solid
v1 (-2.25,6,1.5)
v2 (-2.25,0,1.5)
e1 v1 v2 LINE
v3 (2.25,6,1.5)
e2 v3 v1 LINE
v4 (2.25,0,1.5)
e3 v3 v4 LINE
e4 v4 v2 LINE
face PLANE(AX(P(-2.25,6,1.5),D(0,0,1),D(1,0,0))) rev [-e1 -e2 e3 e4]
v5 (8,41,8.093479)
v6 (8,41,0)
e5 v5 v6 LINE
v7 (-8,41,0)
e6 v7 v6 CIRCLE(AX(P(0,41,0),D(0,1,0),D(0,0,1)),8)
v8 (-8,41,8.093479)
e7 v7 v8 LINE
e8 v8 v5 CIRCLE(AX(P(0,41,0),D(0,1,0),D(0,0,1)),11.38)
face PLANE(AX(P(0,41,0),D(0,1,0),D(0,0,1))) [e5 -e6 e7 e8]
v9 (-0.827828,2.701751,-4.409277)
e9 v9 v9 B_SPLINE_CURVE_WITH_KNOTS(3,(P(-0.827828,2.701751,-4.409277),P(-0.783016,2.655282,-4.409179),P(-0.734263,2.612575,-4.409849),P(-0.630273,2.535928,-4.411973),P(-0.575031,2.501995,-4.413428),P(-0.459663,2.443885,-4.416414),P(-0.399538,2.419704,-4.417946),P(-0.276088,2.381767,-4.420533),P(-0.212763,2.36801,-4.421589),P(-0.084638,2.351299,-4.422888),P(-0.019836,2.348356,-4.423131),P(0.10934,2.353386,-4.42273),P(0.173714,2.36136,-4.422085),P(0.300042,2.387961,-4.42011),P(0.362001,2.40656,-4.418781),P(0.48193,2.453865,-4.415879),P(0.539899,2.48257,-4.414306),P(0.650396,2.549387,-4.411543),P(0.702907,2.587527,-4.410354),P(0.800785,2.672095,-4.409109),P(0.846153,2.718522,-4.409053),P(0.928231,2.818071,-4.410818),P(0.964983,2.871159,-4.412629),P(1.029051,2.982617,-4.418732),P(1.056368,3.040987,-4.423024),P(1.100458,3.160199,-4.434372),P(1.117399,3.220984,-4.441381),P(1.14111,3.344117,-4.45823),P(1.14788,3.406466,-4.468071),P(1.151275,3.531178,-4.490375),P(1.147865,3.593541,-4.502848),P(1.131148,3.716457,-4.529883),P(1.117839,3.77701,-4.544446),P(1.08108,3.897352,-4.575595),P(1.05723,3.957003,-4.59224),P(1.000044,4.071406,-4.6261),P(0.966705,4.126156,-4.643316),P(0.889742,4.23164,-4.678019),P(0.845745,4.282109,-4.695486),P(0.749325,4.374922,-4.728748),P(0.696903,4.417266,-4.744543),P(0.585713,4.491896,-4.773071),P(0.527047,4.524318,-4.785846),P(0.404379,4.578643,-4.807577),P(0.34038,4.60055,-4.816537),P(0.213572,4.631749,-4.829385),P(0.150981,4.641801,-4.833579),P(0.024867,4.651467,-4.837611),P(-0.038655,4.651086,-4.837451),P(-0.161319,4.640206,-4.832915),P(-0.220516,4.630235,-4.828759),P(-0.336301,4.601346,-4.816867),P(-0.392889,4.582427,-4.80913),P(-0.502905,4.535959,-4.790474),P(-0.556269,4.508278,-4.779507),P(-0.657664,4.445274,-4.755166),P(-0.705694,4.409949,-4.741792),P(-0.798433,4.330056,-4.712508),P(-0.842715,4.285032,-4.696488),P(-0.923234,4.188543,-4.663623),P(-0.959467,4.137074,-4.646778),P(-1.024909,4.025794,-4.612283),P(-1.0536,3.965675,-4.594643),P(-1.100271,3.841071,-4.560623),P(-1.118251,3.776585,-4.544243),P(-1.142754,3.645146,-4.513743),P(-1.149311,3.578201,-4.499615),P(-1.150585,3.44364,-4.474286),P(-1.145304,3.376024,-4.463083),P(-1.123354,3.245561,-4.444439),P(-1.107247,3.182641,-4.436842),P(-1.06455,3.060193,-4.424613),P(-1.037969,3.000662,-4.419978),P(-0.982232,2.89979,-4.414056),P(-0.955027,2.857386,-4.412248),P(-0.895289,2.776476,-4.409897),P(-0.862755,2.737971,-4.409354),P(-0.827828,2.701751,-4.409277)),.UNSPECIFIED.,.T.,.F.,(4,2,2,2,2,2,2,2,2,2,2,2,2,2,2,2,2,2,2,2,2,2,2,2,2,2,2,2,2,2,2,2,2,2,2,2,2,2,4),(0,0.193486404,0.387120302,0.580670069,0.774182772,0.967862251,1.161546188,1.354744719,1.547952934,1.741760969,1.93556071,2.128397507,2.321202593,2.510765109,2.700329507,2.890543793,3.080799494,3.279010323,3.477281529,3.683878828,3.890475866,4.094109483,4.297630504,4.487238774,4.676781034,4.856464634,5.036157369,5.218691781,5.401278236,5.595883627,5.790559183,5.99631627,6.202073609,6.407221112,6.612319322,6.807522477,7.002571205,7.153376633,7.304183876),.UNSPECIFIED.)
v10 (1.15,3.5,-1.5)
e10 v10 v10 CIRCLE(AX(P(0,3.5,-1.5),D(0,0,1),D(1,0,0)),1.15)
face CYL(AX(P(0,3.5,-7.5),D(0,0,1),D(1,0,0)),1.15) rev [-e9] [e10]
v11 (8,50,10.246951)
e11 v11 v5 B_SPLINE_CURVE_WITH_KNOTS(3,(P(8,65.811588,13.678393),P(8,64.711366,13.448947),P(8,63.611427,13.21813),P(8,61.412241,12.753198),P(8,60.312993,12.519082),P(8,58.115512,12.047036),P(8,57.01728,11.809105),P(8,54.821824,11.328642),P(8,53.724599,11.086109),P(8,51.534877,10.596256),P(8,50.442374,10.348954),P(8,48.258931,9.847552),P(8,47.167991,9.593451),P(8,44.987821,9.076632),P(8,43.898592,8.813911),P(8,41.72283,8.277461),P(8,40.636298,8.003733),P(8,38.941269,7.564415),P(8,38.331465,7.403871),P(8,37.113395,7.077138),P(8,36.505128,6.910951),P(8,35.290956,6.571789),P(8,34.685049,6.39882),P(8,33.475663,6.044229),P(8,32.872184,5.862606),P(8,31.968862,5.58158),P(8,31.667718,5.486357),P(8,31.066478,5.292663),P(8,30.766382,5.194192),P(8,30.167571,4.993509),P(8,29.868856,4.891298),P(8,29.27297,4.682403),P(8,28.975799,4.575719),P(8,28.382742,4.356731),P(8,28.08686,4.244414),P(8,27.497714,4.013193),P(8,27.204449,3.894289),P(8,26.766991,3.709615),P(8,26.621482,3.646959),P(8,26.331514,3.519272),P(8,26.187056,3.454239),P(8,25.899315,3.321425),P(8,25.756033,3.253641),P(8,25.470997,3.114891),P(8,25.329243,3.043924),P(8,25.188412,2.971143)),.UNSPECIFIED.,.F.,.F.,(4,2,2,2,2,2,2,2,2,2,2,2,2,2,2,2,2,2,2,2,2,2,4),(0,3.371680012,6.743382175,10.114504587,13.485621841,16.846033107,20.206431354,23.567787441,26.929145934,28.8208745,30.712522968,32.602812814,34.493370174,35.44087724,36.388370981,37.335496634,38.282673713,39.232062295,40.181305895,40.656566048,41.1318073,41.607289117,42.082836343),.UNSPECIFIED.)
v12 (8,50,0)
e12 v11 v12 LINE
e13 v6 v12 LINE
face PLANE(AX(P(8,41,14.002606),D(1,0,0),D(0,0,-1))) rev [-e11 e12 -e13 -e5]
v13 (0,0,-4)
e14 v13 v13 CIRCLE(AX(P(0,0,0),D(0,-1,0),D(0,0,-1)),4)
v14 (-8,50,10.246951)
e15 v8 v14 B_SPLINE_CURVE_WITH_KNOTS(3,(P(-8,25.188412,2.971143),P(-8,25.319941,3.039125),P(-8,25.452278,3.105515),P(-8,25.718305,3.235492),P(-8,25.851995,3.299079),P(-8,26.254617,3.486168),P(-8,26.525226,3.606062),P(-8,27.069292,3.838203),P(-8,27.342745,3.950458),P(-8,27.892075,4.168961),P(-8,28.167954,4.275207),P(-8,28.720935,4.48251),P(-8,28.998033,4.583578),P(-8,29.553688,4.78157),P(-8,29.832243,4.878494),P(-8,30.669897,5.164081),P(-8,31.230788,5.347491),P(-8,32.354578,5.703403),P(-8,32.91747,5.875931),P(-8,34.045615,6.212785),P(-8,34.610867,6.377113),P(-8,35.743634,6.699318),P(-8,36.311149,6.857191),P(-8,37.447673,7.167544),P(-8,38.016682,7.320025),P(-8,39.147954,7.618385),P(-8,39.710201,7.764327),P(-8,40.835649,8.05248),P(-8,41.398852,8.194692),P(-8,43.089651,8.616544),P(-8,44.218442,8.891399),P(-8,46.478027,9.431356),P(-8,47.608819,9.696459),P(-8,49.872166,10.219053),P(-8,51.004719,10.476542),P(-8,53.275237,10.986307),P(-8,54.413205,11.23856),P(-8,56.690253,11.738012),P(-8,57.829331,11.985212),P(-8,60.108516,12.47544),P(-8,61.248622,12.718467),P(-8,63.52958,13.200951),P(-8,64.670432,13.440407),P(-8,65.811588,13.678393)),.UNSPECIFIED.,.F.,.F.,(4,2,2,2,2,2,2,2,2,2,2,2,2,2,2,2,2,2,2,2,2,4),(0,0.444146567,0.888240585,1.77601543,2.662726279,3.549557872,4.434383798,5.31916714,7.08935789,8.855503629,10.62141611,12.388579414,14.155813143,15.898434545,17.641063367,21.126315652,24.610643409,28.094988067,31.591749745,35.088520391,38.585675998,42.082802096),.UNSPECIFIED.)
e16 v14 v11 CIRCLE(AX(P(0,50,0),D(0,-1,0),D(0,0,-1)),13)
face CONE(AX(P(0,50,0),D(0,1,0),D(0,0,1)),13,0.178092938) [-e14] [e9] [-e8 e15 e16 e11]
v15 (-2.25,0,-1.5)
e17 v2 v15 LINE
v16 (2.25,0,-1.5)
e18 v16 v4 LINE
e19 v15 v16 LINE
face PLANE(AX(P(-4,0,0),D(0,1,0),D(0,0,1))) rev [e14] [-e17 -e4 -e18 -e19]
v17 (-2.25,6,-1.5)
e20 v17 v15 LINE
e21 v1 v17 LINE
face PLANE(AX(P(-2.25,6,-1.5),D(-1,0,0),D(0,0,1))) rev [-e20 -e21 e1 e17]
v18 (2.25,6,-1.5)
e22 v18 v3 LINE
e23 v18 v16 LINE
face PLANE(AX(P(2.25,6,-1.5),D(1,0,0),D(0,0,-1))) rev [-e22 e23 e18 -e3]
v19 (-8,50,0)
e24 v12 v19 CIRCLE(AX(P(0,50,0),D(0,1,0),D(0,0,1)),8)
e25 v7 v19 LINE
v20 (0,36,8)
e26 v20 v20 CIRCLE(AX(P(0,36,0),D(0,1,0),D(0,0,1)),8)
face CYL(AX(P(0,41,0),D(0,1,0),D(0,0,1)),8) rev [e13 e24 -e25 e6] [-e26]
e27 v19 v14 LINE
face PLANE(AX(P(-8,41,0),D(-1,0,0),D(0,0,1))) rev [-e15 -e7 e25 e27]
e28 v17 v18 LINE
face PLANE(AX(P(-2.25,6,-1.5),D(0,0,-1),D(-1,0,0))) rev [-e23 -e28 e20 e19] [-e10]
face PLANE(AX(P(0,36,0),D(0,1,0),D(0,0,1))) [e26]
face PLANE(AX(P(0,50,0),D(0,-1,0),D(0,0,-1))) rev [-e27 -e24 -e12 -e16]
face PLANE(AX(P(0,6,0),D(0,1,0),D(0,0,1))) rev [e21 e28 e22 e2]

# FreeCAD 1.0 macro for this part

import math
import FreeCAD as App
import Part
import Sketcher


def add_polygon(sketch, points):
    """Adds a closed chain of lines whose ends are joined by coincident constraints."""
    first, n = sketch.GeometryCount, len(points)
    for a, b in zip(points, points[1:] + points[:1]):
        sketch.addGeometry(Part.LineSegment(App.Vector(*a, 0), App.Vector(*b, 0)), False)
    for i in range(n):
        sketch.addConstraint(Sketcher.Constraint("Coincident", first + i, 2, first + (i + 1) % n, 1))

doc = App.newDocument("Part")
body = doc.addObject("PartDesign::Body", "Body")

sketch1 = body.newObject("Sketcher::SketchObject", "Sketch")
sketch1.AttachmentSupport = (doc.getObject("XY_Plane"), [""])
sketch1.MapMode = "FlatFace"
add_polygon(sketch1, [(0, 50), (-13, 50), (-4, 0), (0, 0)])
sketch1.addConstraint([
    Sketcher.Constraint("Horizontal", 0),
    Sketcher.Constraint("Horizontal", 2),
    Sketcher.Constraint("Vertical", 3),
    Sketcher.Constraint("Coincident", 2, 2, -1, 1),
    Sketcher.Constraint("DistanceX", 0, 2, 0, 1, 13.0),
    Sketcher.Constraint("DistanceX", 2, 1, 2, 2, 4.0),
    Sketcher.Constraint("DistanceY", 3, 1, 3, 2, 50.0),
])
revolution = body.newObject("PartDesign::Revolution", "Revolution")
revolution.Profile = sketch1
revolution.ReferenceAxis = (sketch1, ["V_Axis"])
revolution.Angle = 360

sketch2 = body.newObject("Sketcher::SketchObject", "Sketch001")
sketch2.AttachmentSupport = (doc.getObject("XZ_Plane"), [""])
sketch2.MapMode = "FlatFace"
add_polygon(sketch2, [(-2.2, 1.5), (-2.2, -1.5), (2.2, -1.5), (2.2, 1.5)])
sketch2.addConstraint([
    Sketcher.Constraint("Vertical", 0),
    Sketcher.Constraint("Horizontal", 1),
    Sketcher.Constraint("Vertical", 2),
    Sketcher.Constraint("Horizontal", 3),
    Sketcher.Constraint("Symmetric", 0, 2, 2, 2, -1, 1),
    Sketcher.Constraint("DistanceY", 0, 2, 0, 1, 3.0),
    Sketcher.Constraint("DistanceX", 1, 1, 1, 2, 4.5),
])
pocket1 = body.newObject("PartDesign::Pocket", "Pocket")
pocket1.Profile = sketch2
pocket1.Length = 6

sketch3 = body.newObject("Sketcher::SketchObject", "Sketch002")
sketch3.AttachmentSupport = (doc.getObject("XY_Plane"), [""])
sketch3.MapMode = "FlatFace"
sketch3.AttachmentOffset = App.Placement(App.Vector(0, 0, -1.5), App.Rotation())
sketch3.addGeometry(Part.Circle(App.Vector(0, 3.5, 0), App.Vector(0, 0, 1), 1.1), False)
sketch3.addConstraint([
    Sketcher.Constraint("PointOnObject", 0, 3, -2),
    Sketcher.Constraint("Diameter", 0, 2.3),
    Sketcher.Constraint("DistanceY", -1, 1, 0, 3, 3.5),
])
pocket2 = body.newObject("PartDesign::Pocket", "Pocket001")
pocket2.Profile = sketch3
pocket2.Length = 6

sketch4 = body.newObject("Sketcher::SketchObject", "Sketch003")
sketch4.AttachmentSupport = (doc.getObject("XZ_Plane"), [""])
sketch4.MapMode = "FlatFace"
sketch4.AttachmentOffset = App.Placement(App.Vector(0, 0, -50), App.Rotation())
sketch4.addGeometry([
    Part.LineSegment(App.Vector(-8, 0, 0), App.Vector(-8, 14, 0)),
    Part.LineSegment(App.Vector(-8, 14, 0), App.Vector(8, 14, 0)),
    Part.LineSegment(App.Vector(8, 14, 0), App.Vector(8, 0, 0)),
    Part.ArcOfCircle(Part.Circle(App.Vector(0, 0, 0), App.Vector(0, 0, 1), 8), math.radians(180), math.radians(360)),
], False)
sketch4.addConstraint([
    Sketcher.Constraint("Coincident", 0, 2, 1, 1),
    Sketcher.Constraint("Coincident", 1, 2, 2, 1),
    Sketcher.Constraint("Tangent", 2, 2, 3, 2),
    Sketcher.Constraint("Tangent", 3, 1, 0, 1),
    Sketcher.Constraint("Vertical", 0),
    Sketcher.Constraint("Horizontal", 1),
    Sketcher.Constraint("Vertical", 2),
    Sketcher.Constraint("Coincident", 3, 3, -1, 1),
    Sketcher.Constraint("Radius", 3, 8.0),
    Sketcher.Constraint("DistanceY", 0, 1, 0, 2, 14.002606),
])
pocket3 = body.newObject("PartDesign::Pocket", "Pocket002")
pocket3.Profile = sketch4
pocket3.Length = 9
pocket3.Reversed = True

sketch5 = body.newObject("Sketcher::SketchObject", "Sketch004")
sketch5.AttachmentSupport = (doc.getObject("XZ_Plane"), [""])
sketch5.MapMode = "FlatFace"
sketch5.AttachmentOffset = App.Placement(App.Vector(0, 0, -41), App.Rotation())
sketch5.addGeometry(Part.Circle(App.Vector(0, 0, 0), App.Vector(0, 0, 1), 8), False)
sketch5.addConstraint([
    Sketcher.Constraint("Coincident", 0, 3, -1, 1),
    Sketcher.Constraint("Diameter", 0, 16.0),
])
pocket4 = body.newObject("PartDesign::Pocket", "Pocket003")
pocket4.Profile = sketch5
pocket4.Length = 5
pocket4.Reversed = True

doc.recompute()
